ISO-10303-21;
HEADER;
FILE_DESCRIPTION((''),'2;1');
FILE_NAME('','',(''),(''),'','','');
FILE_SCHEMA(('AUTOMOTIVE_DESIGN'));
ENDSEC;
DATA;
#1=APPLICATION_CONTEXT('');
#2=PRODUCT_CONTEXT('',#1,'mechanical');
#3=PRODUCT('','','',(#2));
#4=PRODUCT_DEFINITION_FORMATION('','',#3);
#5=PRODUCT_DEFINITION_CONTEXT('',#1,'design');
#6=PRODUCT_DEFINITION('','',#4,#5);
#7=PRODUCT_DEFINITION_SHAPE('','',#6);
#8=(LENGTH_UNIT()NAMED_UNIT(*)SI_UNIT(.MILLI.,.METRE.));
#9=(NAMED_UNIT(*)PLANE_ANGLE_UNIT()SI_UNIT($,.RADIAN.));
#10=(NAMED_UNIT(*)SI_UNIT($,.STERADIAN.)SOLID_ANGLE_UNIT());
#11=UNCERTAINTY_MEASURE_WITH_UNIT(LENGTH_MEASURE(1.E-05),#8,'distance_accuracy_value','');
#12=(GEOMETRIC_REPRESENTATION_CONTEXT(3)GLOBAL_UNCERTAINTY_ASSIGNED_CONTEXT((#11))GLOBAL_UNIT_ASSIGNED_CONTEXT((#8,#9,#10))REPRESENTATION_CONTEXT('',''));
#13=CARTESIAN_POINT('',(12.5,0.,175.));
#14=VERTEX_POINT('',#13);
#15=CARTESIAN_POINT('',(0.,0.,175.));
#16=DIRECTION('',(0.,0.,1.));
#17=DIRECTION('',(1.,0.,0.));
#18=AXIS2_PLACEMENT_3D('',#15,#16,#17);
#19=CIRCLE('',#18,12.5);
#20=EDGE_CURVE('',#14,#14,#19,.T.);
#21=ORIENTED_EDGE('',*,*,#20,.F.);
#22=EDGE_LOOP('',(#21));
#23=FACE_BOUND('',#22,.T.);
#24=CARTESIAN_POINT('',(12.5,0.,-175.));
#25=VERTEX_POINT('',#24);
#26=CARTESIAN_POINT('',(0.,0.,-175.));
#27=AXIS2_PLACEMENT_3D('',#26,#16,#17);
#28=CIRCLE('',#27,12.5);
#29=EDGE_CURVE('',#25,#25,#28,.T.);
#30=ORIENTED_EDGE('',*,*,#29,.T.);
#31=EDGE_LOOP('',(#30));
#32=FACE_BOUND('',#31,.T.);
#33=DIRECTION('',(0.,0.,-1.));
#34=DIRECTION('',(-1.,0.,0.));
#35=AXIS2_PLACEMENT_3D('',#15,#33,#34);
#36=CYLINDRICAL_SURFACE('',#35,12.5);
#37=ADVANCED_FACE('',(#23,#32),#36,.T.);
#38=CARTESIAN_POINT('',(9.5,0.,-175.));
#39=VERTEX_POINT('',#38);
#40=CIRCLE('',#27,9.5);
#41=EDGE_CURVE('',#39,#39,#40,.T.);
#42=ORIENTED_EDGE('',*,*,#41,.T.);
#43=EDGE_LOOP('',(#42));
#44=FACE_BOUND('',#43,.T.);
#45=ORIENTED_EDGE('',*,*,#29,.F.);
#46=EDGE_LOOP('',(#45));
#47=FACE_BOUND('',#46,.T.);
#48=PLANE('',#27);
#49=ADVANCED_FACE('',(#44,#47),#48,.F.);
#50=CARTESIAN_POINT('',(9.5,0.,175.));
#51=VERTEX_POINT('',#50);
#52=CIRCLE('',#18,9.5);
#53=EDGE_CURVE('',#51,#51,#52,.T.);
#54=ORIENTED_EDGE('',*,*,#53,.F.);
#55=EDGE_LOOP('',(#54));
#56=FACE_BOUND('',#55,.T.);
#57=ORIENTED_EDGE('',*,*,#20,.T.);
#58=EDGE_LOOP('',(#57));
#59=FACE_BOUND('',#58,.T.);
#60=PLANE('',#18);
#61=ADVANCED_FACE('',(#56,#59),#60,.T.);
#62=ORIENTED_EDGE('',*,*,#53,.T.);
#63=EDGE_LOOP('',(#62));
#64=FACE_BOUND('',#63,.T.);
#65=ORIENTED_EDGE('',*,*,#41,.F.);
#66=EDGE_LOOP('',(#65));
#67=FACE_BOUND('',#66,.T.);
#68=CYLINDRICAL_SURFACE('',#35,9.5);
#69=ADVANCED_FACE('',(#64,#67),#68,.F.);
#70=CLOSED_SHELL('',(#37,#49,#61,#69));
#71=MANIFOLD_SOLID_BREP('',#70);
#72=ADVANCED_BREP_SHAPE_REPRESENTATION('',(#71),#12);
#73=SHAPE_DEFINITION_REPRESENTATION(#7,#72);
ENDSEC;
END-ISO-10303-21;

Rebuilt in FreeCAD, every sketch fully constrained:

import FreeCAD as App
import Part
import Sketcher
from FreeCAD import Vector

doc = App.newDocument("Part")
body = doc.addObject("PartDesign::Body", "Body")

# Sketch on XY plane
sketch1 = body.newObject("Sketcher::SketchObject", "Sketch")
sketch1.AttachmentSupport = (doc.getObject("XY_Plane"), [""])
sketch1.MapMode = "FlatFace"
sketch1.addGeometry([
    Part.Circle(Vector(0, 0, 0), Vector(0, 0, 1), 12),
    Part.Circle(Vector(0, 0, 0), Vector(0, 0, 1), 10),
], False)
sketch1.addConstraint([
    Sketcher.Constraint("Coincident", 0, 3, -1, 1),
    Sketcher.Constraint("Coincident", 1, 3, -1, 1),
    Sketcher.Constraint("Diameter", 0, 25.0),
    Sketcher.Constraint("Diameter", 1, 19.0),
])
pad1 = body.newObject("PartDesign::Pad", "Pad")
pad1.Profile = sketch1
pad1.Length = 350
pad1.Midplane = True

doc.recompute()
